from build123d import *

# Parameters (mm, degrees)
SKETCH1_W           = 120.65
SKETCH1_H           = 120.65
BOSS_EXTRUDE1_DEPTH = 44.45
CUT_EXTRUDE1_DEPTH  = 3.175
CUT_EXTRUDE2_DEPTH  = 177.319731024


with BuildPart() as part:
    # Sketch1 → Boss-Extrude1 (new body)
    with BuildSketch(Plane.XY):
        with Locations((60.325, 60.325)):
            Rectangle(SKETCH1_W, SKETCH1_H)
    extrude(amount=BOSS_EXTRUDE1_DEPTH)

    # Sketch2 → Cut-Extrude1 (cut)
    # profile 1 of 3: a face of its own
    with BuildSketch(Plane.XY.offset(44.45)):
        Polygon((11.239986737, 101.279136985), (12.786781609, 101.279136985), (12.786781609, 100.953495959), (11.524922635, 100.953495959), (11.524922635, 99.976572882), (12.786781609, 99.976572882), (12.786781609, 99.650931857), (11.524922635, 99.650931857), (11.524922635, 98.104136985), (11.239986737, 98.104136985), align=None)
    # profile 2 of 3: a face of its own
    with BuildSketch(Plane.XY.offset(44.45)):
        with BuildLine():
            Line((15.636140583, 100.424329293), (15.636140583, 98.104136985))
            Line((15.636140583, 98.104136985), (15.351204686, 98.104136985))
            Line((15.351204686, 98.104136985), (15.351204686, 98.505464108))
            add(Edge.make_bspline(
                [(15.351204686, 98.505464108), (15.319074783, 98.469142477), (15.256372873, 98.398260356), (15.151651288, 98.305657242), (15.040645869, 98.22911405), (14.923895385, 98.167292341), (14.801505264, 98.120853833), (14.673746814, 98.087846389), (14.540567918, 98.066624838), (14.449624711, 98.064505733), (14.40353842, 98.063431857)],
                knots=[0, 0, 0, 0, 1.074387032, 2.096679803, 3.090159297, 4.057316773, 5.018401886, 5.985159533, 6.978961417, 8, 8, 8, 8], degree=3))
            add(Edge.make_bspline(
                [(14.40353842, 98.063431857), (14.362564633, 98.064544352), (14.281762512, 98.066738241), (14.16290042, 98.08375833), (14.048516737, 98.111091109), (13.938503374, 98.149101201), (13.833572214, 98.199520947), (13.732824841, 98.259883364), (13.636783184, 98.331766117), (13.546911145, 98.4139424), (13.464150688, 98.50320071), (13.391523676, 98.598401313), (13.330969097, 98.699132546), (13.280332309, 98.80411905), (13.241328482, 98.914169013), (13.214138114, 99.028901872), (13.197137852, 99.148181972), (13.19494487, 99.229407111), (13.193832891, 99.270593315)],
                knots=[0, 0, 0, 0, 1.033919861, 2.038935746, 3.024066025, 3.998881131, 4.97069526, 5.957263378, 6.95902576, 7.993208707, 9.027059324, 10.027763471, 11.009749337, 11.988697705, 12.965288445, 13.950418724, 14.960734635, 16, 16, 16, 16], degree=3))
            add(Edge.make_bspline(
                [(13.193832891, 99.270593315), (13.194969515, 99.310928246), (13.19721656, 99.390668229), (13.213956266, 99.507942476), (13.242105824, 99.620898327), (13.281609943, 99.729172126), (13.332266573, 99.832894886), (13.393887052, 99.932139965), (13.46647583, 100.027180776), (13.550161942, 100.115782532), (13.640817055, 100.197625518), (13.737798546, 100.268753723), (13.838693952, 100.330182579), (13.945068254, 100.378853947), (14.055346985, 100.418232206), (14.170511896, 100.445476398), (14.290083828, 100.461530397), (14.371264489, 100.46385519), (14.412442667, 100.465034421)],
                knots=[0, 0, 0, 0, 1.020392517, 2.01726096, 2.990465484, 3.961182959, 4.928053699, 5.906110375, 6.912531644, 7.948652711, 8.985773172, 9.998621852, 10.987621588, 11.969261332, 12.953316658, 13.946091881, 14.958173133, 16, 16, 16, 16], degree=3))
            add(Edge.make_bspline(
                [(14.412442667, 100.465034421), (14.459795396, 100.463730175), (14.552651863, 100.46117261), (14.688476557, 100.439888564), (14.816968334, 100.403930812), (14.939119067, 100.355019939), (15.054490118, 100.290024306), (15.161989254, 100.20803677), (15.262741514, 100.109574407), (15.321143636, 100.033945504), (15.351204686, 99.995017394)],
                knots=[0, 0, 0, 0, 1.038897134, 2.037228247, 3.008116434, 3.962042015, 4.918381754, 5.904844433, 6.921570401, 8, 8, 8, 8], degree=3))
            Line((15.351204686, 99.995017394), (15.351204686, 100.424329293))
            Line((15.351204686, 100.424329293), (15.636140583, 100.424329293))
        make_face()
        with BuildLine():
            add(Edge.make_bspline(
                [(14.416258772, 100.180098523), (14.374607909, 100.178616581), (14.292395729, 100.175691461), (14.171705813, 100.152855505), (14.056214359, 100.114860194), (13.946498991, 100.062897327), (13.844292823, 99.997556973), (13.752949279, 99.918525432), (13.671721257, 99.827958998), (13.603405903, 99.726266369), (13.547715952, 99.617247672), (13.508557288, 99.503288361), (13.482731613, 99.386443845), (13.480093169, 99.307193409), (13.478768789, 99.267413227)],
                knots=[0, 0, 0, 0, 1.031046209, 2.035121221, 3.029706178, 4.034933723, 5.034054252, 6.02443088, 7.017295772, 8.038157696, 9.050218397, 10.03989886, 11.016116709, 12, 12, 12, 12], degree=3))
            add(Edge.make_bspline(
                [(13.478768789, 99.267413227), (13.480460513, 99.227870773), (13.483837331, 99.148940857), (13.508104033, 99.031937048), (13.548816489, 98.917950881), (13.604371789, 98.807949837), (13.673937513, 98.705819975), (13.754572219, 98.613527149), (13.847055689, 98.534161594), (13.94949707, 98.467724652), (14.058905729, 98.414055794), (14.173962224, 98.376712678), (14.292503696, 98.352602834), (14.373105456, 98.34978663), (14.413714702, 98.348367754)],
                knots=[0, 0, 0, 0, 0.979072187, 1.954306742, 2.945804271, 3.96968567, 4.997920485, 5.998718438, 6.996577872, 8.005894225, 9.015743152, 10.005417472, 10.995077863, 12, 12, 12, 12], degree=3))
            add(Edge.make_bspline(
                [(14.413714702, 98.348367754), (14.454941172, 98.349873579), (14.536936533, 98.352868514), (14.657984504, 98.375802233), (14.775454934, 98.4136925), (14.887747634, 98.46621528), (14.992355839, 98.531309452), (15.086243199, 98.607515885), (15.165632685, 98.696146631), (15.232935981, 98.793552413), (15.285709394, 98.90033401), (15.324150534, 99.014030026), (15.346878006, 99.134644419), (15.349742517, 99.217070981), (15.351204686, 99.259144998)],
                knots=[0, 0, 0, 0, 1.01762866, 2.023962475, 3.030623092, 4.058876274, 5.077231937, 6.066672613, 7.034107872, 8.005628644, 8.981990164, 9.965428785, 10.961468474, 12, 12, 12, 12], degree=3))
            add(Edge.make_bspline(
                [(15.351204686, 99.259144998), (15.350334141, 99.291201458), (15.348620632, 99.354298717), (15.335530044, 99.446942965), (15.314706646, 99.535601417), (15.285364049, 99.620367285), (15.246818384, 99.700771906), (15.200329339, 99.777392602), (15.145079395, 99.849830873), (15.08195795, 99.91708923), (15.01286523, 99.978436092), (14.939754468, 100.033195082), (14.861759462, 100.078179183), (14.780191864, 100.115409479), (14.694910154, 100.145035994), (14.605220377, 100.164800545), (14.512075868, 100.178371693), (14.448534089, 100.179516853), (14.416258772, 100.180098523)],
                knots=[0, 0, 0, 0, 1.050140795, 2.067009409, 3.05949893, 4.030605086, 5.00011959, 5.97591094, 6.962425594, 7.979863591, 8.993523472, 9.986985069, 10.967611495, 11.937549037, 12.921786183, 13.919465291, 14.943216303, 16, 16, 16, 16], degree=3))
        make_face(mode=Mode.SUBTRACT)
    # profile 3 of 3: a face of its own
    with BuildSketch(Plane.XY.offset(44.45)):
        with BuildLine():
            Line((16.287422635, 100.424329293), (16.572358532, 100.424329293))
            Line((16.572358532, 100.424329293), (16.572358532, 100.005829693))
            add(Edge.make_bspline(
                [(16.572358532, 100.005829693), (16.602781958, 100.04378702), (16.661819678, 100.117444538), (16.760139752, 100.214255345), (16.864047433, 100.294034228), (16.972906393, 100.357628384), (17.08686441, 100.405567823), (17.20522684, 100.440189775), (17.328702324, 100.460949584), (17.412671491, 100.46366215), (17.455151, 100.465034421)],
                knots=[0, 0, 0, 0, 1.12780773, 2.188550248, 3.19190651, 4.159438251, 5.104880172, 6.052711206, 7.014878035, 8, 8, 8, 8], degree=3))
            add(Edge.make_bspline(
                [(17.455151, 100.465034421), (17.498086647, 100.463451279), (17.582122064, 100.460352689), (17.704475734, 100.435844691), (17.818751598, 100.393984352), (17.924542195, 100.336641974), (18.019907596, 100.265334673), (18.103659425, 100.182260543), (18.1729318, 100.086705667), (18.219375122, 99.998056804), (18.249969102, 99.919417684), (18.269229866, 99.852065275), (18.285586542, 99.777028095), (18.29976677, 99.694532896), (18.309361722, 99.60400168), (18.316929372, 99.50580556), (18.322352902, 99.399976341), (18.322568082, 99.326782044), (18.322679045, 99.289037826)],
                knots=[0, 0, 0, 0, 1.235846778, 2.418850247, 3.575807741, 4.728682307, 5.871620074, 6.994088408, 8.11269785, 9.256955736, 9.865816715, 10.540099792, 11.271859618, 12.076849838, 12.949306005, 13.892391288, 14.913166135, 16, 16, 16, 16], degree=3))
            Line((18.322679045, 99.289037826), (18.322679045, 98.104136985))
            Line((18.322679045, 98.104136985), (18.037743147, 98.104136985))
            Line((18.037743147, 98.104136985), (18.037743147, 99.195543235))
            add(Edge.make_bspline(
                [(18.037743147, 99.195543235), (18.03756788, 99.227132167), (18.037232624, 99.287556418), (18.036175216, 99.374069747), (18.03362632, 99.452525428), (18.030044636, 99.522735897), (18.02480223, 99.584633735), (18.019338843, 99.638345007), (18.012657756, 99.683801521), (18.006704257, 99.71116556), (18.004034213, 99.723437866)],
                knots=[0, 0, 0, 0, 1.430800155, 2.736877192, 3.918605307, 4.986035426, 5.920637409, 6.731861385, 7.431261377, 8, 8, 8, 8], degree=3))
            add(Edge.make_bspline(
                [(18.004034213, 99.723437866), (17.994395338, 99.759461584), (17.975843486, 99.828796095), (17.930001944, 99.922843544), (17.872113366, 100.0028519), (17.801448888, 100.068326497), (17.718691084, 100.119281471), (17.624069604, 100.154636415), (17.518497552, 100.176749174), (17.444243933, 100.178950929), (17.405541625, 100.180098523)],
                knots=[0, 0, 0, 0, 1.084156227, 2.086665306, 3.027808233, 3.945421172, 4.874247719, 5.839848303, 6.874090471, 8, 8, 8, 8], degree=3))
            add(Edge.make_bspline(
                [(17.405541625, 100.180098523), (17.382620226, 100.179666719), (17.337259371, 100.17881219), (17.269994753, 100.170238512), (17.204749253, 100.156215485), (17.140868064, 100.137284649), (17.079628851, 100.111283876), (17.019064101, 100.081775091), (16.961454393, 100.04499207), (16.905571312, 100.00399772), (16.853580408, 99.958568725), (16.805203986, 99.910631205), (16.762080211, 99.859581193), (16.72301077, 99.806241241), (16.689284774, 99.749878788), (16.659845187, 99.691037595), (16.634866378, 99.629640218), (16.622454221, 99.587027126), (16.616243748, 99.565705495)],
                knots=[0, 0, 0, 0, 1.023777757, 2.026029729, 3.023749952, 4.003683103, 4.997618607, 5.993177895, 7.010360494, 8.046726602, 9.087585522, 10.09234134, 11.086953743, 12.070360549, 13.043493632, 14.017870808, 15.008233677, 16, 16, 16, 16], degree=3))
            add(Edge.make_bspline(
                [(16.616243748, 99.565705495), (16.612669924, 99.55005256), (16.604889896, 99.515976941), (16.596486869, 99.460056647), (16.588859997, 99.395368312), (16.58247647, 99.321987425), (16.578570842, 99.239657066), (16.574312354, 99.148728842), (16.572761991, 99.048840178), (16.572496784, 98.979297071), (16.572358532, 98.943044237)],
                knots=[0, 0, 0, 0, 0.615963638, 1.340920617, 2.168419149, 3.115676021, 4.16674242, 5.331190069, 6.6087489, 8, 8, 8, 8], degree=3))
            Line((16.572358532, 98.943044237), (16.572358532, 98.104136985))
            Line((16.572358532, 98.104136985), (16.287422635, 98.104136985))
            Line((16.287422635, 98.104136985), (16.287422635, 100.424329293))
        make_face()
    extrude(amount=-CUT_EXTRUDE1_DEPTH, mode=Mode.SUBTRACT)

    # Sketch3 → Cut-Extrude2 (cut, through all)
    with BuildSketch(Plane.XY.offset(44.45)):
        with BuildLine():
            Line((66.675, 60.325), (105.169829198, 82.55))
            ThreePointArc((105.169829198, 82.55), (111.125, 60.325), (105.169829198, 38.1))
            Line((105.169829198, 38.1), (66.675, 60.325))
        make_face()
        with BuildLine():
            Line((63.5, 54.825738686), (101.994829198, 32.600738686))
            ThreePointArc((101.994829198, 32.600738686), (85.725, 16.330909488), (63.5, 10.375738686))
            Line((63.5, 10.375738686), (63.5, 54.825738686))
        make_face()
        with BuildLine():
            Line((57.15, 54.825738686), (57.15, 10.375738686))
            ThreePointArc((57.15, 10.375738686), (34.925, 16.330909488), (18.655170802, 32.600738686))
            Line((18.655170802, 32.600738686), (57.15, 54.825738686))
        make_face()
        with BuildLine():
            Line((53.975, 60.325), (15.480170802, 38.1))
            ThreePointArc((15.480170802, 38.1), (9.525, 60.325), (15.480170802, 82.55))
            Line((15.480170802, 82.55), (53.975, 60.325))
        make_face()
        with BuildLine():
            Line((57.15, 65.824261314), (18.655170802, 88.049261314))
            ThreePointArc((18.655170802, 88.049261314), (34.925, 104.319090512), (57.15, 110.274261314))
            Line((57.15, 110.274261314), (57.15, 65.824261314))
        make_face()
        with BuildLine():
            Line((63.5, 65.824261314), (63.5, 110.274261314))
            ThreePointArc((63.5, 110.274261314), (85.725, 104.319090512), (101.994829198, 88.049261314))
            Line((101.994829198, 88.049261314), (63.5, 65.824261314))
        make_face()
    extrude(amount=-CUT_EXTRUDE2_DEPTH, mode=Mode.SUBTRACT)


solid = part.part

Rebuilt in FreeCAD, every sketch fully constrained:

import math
import FreeCAD as App
import Part
import Sketcher
from FreeCAD import Vector
Q = App.Units.Quantity

doc = App.newDocument("Part")
body = doc.addObject("PartDesign::Body", "Body")

sketch1 = body.newObject("Sketcher::SketchObject", "Sketch")
sketch1.AttachmentSupport = (doc.getObject("XY_Plane"), [""])
sketch1.MapMode = "FlatFace"
sketch1.addGeometry([
    Part.LineSegment(Vector(0, 120.65, 0), Vector(0, 0, 0)),
    Part.LineSegment(Vector(0, 0, 0), Vector(120.65, 0, 0)),
    Part.LineSegment(Vector(120.65, 0, 0), Vector(120.65, 120.65, 0)),
    Part.LineSegment(Vector(120.65, 120.65, 0), Vector(0, 120.65, 0)),
], False)
sketch1.addConstraint([
    Sketcher.Constraint("Coincident", 0, 2, 1, 1),
    Sketcher.Constraint("Coincident", 1, 2, 2, 1),
    Sketcher.Constraint("Coincident", 2, 2, 3, 1),
    Sketcher.Constraint("Coincident", 3, 2, 0, 1),
    Sketcher.Constraint("Vertical", 0),
    Sketcher.Constraint("Horizontal", 1),
    Sketcher.Constraint("Vertical", 2),
    Sketcher.Constraint("Horizontal", 3),
    Sketcher.Constraint("Coincident", 0, 2, -1, 1),
    Sketcher.Constraint("Equal", 3, 0),
    Sketcher.Constraint("DistanceX", 1, 1, 1, 2, Q("4.75 in")),
])
pad1 = body.newObject("PartDesign::Pad", "Pad")
pad1.Profile = sketch1
pad1.Length = Q("1.75 in")

sketch2 = body.newObject("Sketcher::SketchObject", "Sketch001")
sketch2.AttachmentSupport = (doc.getObject("XY_Plane"), [""])
sketch2.MapMode = "FlatFace"
sketch2.AttachmentOffset = App.Placement(Vector(0, 0, 1.75 * 25.4), App.Rotation())
sketch2.addGeometry([
    Part.LineSegment(Vector(12.786782, 101.279137, 0), Vector(11.239987, 101.279137, 0)),
    Part.LineSegment(Vector(11.239987, 101.279137, 0), Vector(11.239987, 98.104137, 0)),
    Part.LineSegment(Vector(11.239987, 98.104137, 0), Vector(11.524923, 98.104137, 0)),
    Part.LineSegment(Vector(11.524923, 98.104137, 0), Vector(11.524923, 99.650932, 0)),
    Part.LineSegment(Vector(11.524923, 99.650932, 0), Vector(12.786782, 99.650932, 0)),
    Part.LineSegment(Vector(12.786782, 99.650932, 0), Vector(12.786782, 99.976573, 0)),
    Part.LineSegment(Vector(12.786782, 99.976573, 0), Vector(11.524923, 99.976573, 0)),
    Part.LineSegment(Vector(11.524923, 99.976573, 0), Vector(11.524923, 100.953496, 0)),
    Part.LineSegment(Vector(11.524923, 100.953496, 0), Vector(12.786782, 100.953496, 0)),
    Part.LineSegment(Vector(12.786782, 100.953496, 0), Vector(12.786782, 101.279137, 0)),
    Part.LineSegment(Vector(15.636141, 98.104137, 0), Vector(15.636141, 100.424329, 0)),
    Part.LineSegment(Vector(15.636141, 100.424329, 0), Vector(15.351205, 100.424329, 0)),
    Part.LineSegment(Vector(15.351205, 100.424329, 0), Vector(15.351205, 99.995017, 0)),
    Part.BSplineCurve([Vector(14.412443, 100.465034, 0), Vector(14.459795, 100.46373, 0), Vector(14.552652, 100.461173, 0), Vector(14.688477, 100.439889, 0), Vector(14.816968, 100.403931, 0), Vector(14.939119, 100.35502, 0), Vector(15.05449, 100.290024, 0), Vector(15.161989, 100.208037, 0), Vector(15.262742, 100.109574, 0), Vector(15.321144, 100.033946, 0), Vector(15.351205, 99.995017, 0)], [4, 1, 1, 1, 1, 1, 1, 1, 4], [0, 1.038897134, 2.037228247, 3.008116434, 3.962042015, 4.918381754, 5.904844433, 6.921570401, 8], False, 3, [1, 1, 1, 1, 1, 1, 1, 1, 1, 1, 1], False),
    Part.BSplineCurve([Vector(13.193833, 99.270593, 0), Vector(13.19497, 99.310928, 0), Vector(13.197217, 99.390668, 0), Vector(13.213956, 99.507942, 0), Vector(13.242106, 99.620898, 0), Vector(13.28161, 99.729172, 0), Vector(13.332267, 99.832895, 0), Vector(13.393887, 99.93214, 0), Vector(13.466476, 100.027181, 0), Vector(13.550162, 100.115783, 0), Vector(13.640817, 100.197626, 0), Vector(13.737799, 100.268754, 0), Vector(13.838694, 100.330183, 0), Vector(13.945068, 100.378854, 0), Vector(14.055347, 100.418232, 0), Vector(14.170512, 100.445476, 0), Vector(14.290084, 100.46153, 0), Vector(14.371264, 100.463855, 0), Vector(14.412443, 100.465034, 0)], [4, 1, 1, 1, 1, 1, 1, 1, 1, 1, 1, 1, 1, 1, 1, 1, 4], [0, 1.020392517, 2.01726096, 2.990465484, 3.961182959, 4.928053699, 5.906110375, 6.912531644, 7.948652711, 8.985773172, 9.998621852, 10.987621588, 11.969261332, 12.953316658, 13.946091881, 14.958173133, 16], False, 3, [1, 1, 1, 1, 1, 1, 1, 1, 1, 1, 1, 1, 1, 1, 1, 1, 1, 1, 1], False),
    Part.BSplineCurve([Vector(14.403538, 98.063432, 0), Vector(14.362565, 98.064544, 0), Vector(14.281763, 98.066738, 0), Vector(14.1629, 98.083758, 0), Vector(14.048517, 98.111091, 0), Vector(13.938503, 98.149101, 0), Vector(13.833572, 98.199521, 0), Vector(13.732825, 98.259883, 0), Vector(13.636783, 98.331766, 0), Vector(13.546911, 98.413942, 0), Vector(13.464151, 98.503201, 0), Vector(13.391524, 98.598401, 0), Vector(13.330969, 98.699133, 0), Vector(13.280332, 98.804119, 0), Vector(13.241328, 98.914169, 0), Vector(13.214138, 99.028902, 0), Vector(13.197138, 99.148182, 0), Vector(13.194945, 99.229407, 0), Vector(13.193833, 99.270593, 0)], [4, 1, 1, 1, 1, 1, 1, 1, 1, 1, 1, 1, 1, 1, 1, 1, 4], [0, 1.033919861, 2.038935746, 3.024066025, 3.998881131, 4.97069526, 5.957263378, 6.95902576, 7.993208707, 9.027059324, 10.027763471, 11.009749337, 11.988697705, 12.965288445, 13.950418724, 14.960734635, 16], False, 3, [1, 1, 1, 1, 1, 1, 1, 1, 1, 1, 1, 1, 1, 1, 1, 1, 1, 1, 1], False),
    Part.BSplineCurve([Vector(15.351205, 98.505464, 0), Vector(15.319075, 98.469142, 0), Vector(15.256373, 98.39826, 0), Vector(15.151651, 98.305657, 0), Vector(15.040646, 98.229114, 0), Vector(14.923895, 98.167292, 0), Vector(14.801505, 98.120854, 0), Vector(14.673747, 98.087846, 0), Vector(14.540568, 98.066625, 0), Vector(14.449625, 98.064506, 0), Vector(14.403538, 98.063432, 0)], [4, 1, 1, 1, 1, 1, 1, 1, 4], [0, 1.074387032, 2.096679803, 3.090159297, 4.057316773, 5.018401886, 5.985159533, 6.978961417, 8], False, 3, [1, 1, 1, 1, 1, 1, 1, 1, 1, 1, 1], False),
    Part.LineSegment(Vector(15.351205, 98.505464, 0), Vector(15.351205, 98.104137, 0)),
    Part.LineSegment(Vector(15.351205, 98.104137, 0), Vector(15.636141, 98.104137, 0)),
    Part.BSplineCurve([Vector(15.351205, 99.259145, 0), Vector(15.350334, 99.291201, 0), Vector(15.348621, 99.354299, 0), Vector(15.33553, 99.446943, 0), Vector(15.314707, 99.535601, 0), Vector(15.285364, 99.620367, 0), Vector(15.246818, 99.700772, 0), Vector(15.200329, 99.777393, 0), Vector(15.145079, 99.849831, 0), Vector(15.081958, 99.917089, 0), Vector(15.012865, 99.978436, 0), Vector(14.939754, 100.033195, 0), Vector(14.861759, 100.078179, 0), Vector(14.780192, 100.115409, 0), Vector(14.69491, 100.145036, 0), Vector(14.60522, 100.164801, 0), Vector(14.512076, 100.178372, 0), Vector(14.448534, 100.179517, 0), Vector(14.416259, 100.180099, 0)], [4, 1, 1, 1, 1, 1, 1, 1, 1, 1, 1, 1, 1, 1, 1, 1, 4], [0, 1.050140795, 2.067009409, 3.05949893, 4.030605086, 5.00011959, 5.97591094, 6.962425594, 7.979863591, 8.993523472, 9.986985069, 10.967611495, 11.937549037, 12.921786183, 13.919465291, 14.943216303, 16], False, 3, [1, 1, 1, 1, 1, 1, 1, 1, 1, 1, 1, 1, 1, 1, 1, 1, 1, 1, 1], False),
    Part.BSplineCurve([Vector(14.413715, 98.348368, 0), Vector(14.454941, 98.349874, 0), Vector(14.536937, 98.352869, 0), Vector(14.657985, 98.375802, 0), Vector(14.775455, 98.413692, 0), Vector(14.887748, 98.466215, 0), Vector(14.992356, 98.531309, 0), Vector(15.086243, 98.607516, 0), Vector(15.165633, 98.696147, 0), Vector(15.232936, 98.793552, 0), Vector(15.285709, 98.900334, 0), Vector(15.324151, 99.01403, 0), Vector(15.346878, 99.134644, 0), Vector(15.349743, 99.217071, 0), Vector(15.351205, 99.259145, 0)], [4, 1, 1, 1, 1, 1, 1, 1, 1, 1, 1, 1, 4], [0, 1.01762866, 2.023962475, 3.030623092, 4.058876274, 5.077231937, 6.066672613, 7.034107872, 8.005628644, 8.981990164, 9.965428785, 10.961468474, 12], False, 3, [1, 1, 1, 1, 1, 1, 1, 1, 1, 1, 1, 1, 1, 1, 1], False),
    Part.BSplineCurve([Vector(13.478769, 99.267413, 0), Vector(13.480461, 99.227871, 0), Vector(13.483837, 99.148941, 0), Vector(13.508104, 99.031937, 0), Vector(13.548816, 98.917951, 0), Vector(13.604372, 98.80795, 0), Vector(13.673938, 98.70582, 0), Vector(13.754572, 98.613527, 0), Vector(13.847056, 98.534162, 0), Vector(13.949497, 98.467725, 0), Vector(14.058906, 98.414056, 0), Vector(14.173962, 98.376713, 0), Vector(14.292504, 98.352603, 0), Vector(14.373105, 98.349787, 0), Vector(14.413715, 98.348368, 0)], [4, 1, 1, 1, 1, 1, 1, 1, 1, 1, 1, 1, 4], [0, 0.979072187, 1.954306742, 2.945804271, 3.96968567, 4.997920485, 5.998718438, 6.996577872, 8.005894225, 9.015743152, 10.005417472, 10.995077863, 12], False, 3, [1, 1, 1, 1, 1, 1, 1, 1, 1, 1, 1, 1, 1, 1, 1], False),
    Part.BSplineCurve([Vector(14.416259, 100.180099, 0), Vector(14.374608, 100.178617, 0), Vector(14.292396, 100.175691, 0), Vector(14.171706, 100.152856, 0), Vector(14.056214, 100.11486, 0), Vector(13.946499, 100.062897, 0), Vector(13.844293, 99.997557, 0), Vector(13.752949, 99.918525, 0), Vector(13.671721, 99.827959, 0), Vector(13.603406, 99.726266, 0), Vector(13.547716, 99.617248, 0), Vector(13.508557, 99.503288, 0), Vector(13.482732, 99.386444, 0), Vector(13.480093, 99.307193, 0), Vector(13.478769, 99.267413, 0)], [4, 1, 1, 1, 1, 1, 1, 1, 1, 1, 1, 1, 4], [0, 1.031046209, 2.035121221, 3.029706178, 4.034933723, 5.034054252, 6.02443088, 7.017295772, 8.038157696, 9.050218397, 10.03989886, 11.016116709, 12], False, 3, [1, 1, 1, 1, 1, 1, 1, 1, 1, 1, 1, 1, 1, 1, 1], False),
    Part.LineSegment(Vector(16.572359, 100.424329, 0), Vector(16.287423, 100.424329, 0)),
    Part.LineSegment(Vector(16.287423, 100.424329, 0), Vector(16.287423, 98.104137, 0)),
    Part.LineSegment(Vector(16.287423, 98.104137, 0), Vector(16.572359, 98.104137, 0)),
    Part.LineSegment(Vector(16.572359, 98.104137, 0), Vector(16.572359, 98.943044, 0)),
    Part.BSplineCurve([Vector(16.616244, 99.565705, 0), Vector(16.61267, 99.550053, 0), Vector(16.60489, 99.515977, 0), Vector(16.596487, 99.460057, 0), Vector(16.58886, 99.395368, 0), Vector(16.582476, 99.321987, 0), Vector(16.578571, 99.239657, 0), Vector(16.574312, 99.148729, 0), Vector(16.572762, 99.04884, 0), Vector(16.572497, 98.979297, 0), Vector(16.572359, 98.943044, 0)], [4, 1, 1, 1, 1, 1, 1, 1, 4], [0, 0.615963638, 1.340920617, 2.168419149, 3.115676021, 4.16674242, 5.331190069, 6.6087489, 8], False, 3, [1, 1, 1, 1, 1, 1, 1, 1, 1, 1, 1], False),
    Part.BSplineCurve([Vector(17.405542, 100.180099, 0), Vector(17.38262, 100.179667, 0), Vector(17.337259, 100.178812, 0), Vector(17.269995, 100.170239, 0), Vector(17.204749, 100.156215, 0), Vector(17.140868, 100.137285, 0), Vector(17.079629, 100.111284, 0), Vector(17.019064, 100.081775, 0), Vector(16.961454, 100.044992, 0), Vector(16.905571, 100.003998, 0), Vector(16.85358, 99.958569, 0), Vector(16.805204, 99.910631, 0), Vector(16.76208, 99.859581, 0), Vector(16.723011, 99.806241, 0), Vector(16.689285, 99.749879, 0), Vector(16.659845, 99.691038, 0), Vector(16.634866, 99.62964, 0), Vector(16.622454, 99.587027, 0), Vector(16.616244, 99.565705, 0)], [4, 1, 1, 1, 1, 1, 1, 1, 1, 1, 1, 1, 1, 1, 1, 1, 4], [0, 1.023777757, 2.026029729, 3.023749952, 4.003683103, 4.997618607, 5.993177895, 7.010360494, 8.046726602, 9.087585522, 10.09234134, 11.086953743, 12.070360549, 13.043493632, 14.017870808, 15.008233677, 16], False, 3, [1, 1, 1, 1, 1, 1, 1, 1, 1, 1, 1, 1, 1, 1, 1, 1, 1, 1, 1], False),
    Part.BSplineCurve([Vector(18.004034, 99.723438, 0), Vector(17.994395, 99.759462, 0), Vector(17.975843, 99.828796, 0), Vector(17.930002, 99.922844, 0), Vector(17.872113, 100.002852, 0), Vector(17.801449, 100.068326, 0), Vector(17.718691, 100.119281, 0), Vector(17.62407, 100.154636, 0), Vector(17.518498, 100.176749, 0), Vector(17.444244, 100.178951, 0), Vector(17.405542, 100.180099, 0)], [4, 1, 1, 1, 1, 1, 1, 1, 4], [0, 1.084156227, 2.086665306, 3.027808233, 3.945421172, 4.874247719, 5.839848303, 6.874090471, 8], False, 3, [1, 1, 1, 1, 1, 1, 1, 1, 1, 1, 1], False),
    Part.BSplineCurve([Vector(18.037743, 99.195543, 0), Vector(18.037568, 99.227132, 0), Vector(18.037233, 99.287556, 0), Vector(18.036175, 99.37407, 0), Vector(18.033626, 99.452525, 0), Vector(18.030045, 99.522736, 0), Vector(18.024802, 99.584634, 0), Vector(18.019339, 99.638345, 0), Vector(18.012658, 99.683802, 0), Vector(18.006704, 99.711166, 0), Vector(18.004034, 99.723438, 0)], [4, 1, 1, 1, 1, 1, 1, 1, 4], [0, 1.430800155, 2.736877192, 3.918605307, 4.986035426, 5.920637409, 6.731861385, 7.431261377, 8], False, 3, [1, 1, 1, 1, 1, 1, 1, 1, 1, 1, 1], False),
    Part.LineSegment(Vector(18.037743, 99.195543, 0), Vector(18.037743, 98.104137, 0)),
    Part.LineSegment(Vector(18.037743, 98.104137, 0), Vector(18.322679, 98.104137, 0)),
    Part.LineSegment(Vector(18.322679, 98.104137, 0), Vector(18.322679, 99.289038, 0)),
    Part.BSplineCurve([Vector(17.455151, 100.465034, 0), Vector(17.498087, 100.463451, 0), Vector(17.582122, 100.460353, 0), Vector(17.704476, 100.435845, 0), Vector(17.818752, 100.393984, 0), Vector(17.924542, 100.336642, 0), Vector(18.019908, 100.265335, 0), Vector(18.103659, 100.182261, 0), Vector(18.172932, 100.086706, 0), Vector(18.219375, 99.998057, 0), Vector(18.249969, 99.919418, 0), Vector(18.26923, 99.852065, 0), Vector(18.285587, 99.777028, 0), Vector(18.299767, 99.694533, 0), Vector(18.309362, 99.604002, 0), Vector(18.316929, 99.505806, 0), Vector(18.322353, 99.399976, 0), Vector(18.322568, 99.326782, 0), Vector(18.322679, 99.289038, 0)], [4, 1, 1, 1, 1, 1, 1, 1, 1, 1, 1, 1, 1, 1, 1, 1, 4], [0, 1.235846778, 2.418850247, 3.575807741, 4.728682307, 5.871620074, 6.994088408, 8.11269785, 9.256955736, 9.865816715, 10.540099792, 11.271859618, 12.076849838, 12.949306005, 13.892391288, 14.913166135, 16], False, 3, [1, 1, 1, 1, 1, 1, 1, 1, 1, 1, 1, 1, 1, 1, 1, 1, 1, 1, 1], False),
    Part.BSplineCurve([Vector(16.572359, 100.00583, 0), Vector(16.602782, 100.043787, 0), Vector(16.66182, 100.117445, 0), Vector(16.76014, 100.214255, 0), Vector(16.864047, 100.294034, 0), Vector(16.972906, 100.357628, 0), Vector(17.086864, 100.405568, 0), Vector(17.205227, 100.44019, 0), Vector(17.328702, 100.46095, 0), Vector(17.412671, 100.463662, 0), Vector(17.455151, 100.465034, 0)], [4, 1, 1, 1, 1, 1, 1, 1, 4], [0, 1.12780773, 2.188550248, 3.19190651, 4.159438251, 5.104880172, 6.052711206, 7.014878035, 8], False, 3, [1, 1, 1, 1, 1, 1, 1, 1, 1, 1, 1], False),
    Part.LineSegment(Vector(16.572359, 100.00583, 0), Vector(16.572359, 100.424329, 0)),
], False)
sketch2.addConstraint([
    Sketcher.Constraint("Block", 13),
    Sketcher.Constraint("Block", 14),
    Sketcher.Constraint("Block", 15),
    Sketcher.Constraint("Block", 16),
    Sketcher.Constraint("Block", 19),
    Sketcher.Constraint("Block", 20),
    Sketcher.Constraint("Block", 21),
    Sketcher.Constraint("Block", 22),
    Sketcher.Constraint("Block", 27),
    Sketcher.Constraint("Block", 28),
    Sketcher.Constraint("Block", 29),
    Sketcher.Constraint("Block", 30),
    Sketcher.Constraint("Block", 34),
    Sketcher.Constraint("Block", 35),
    Sketcher.Constraint("Coincident", 0, 2, 1, 1),
    Sketcher.Constraint("Coincident", 1, 2, 2, 1),
    Sketcher.Constraint("Coincident", 2, 2, 3, 1),
    Sketcher.Constraint("Coincident", 3, 2, 4, 1),
    Sketcher.Constraint("Coincident", 4, 2, 5, 1),
    Sketcher.Constraint("Coincident", 5, 2, 6, 1),
    Sketcher.Constraint("Coincident", 6, 2, 7, 1),
    Sketcher.Constraint("Coincident", 7, 2, 8, 1),
    Sketcher.Constraint("Coincident", 8, 2, 9, 1),
    Sketcher.Constraint("Coincident", 9, 2, 0, 1),
    Sketcher.Constraint("Coincident", 10, 2, 11, 1),
    Sketcher.Constraint("Coincident", 11, 2, 12, 1),
    Sketcher.Constraint("Coincident", 12, 2, 13, 2),
    Sketcher.Constraint("Coincident", 16, 1, 17, 1),
    Sketcher.Constraint("Coincident", 17, 2, 18, 1),
    Sketcher.Constraint("Coincident", 18, 2, 10, 1),
    Sketcher.Constraint("Coincident", 23, 2, 24, 1),
    Sketcher.Constraint("Coincident", 24, 2, 25, 1),
    Sketcher.Constraint("Coincident", 25, 2, 26, 1),
    Sketcher.Constraint("Coincident", 26, 2, 27, 2),
    Sketcher.Constraint("Coincident", 30, 1, 31, 1),
    Sketcher.Constraint("Coincident", 31, 2, 32, 1),
    Sketcher.Constraint("Coincident", 32, 2, 33, 1),
    Sketcher.Constraint("Coincident", 33, 2, 34, 2),
    Sketcher.Constraint("Coincident", 35, 1, 36, 1),
    Sketcher.Constraint("Coincident", 36, 2, 23, 1),
    Sketcher.Constraint("Horizontal", 0),
    Sketcher.Constraint("Vertical", 1),
    Sketcher.Constraint("Horizontal", 2),
    Sketcher.Constraint("Vertical", 3),
    Sketcher.Constraint("Horizontal", 4),
    Sketcher.Constraint("Vertical", 5),
    Sketcher.Constraint("Horizontal", 6),
    Sketcher.Constraint("Vertical", 7),
    Sketcher.Constraint("Horizontal", 8),
    Sketcher.Constraint("Vertical", 9),
    Sketcher.Constraint("Vertical", 10),
    Sketcher.Constraint("Horizontal", 11),
    Sketcher.Constraint("Vertical", 12),
    Sketcher.Constraint("Vertical", 17),
    Sketcher.Constraint("Horizontal", 18),
    Sketcher.Constraint("Horizontal", 23),
    Sketcher.Constraint("Vertical", 24),
    Sketcher.Constraint("Horizontal", 25),
    Sketcher.Constraint("Vertical", 26),
    Sketcher.Constraint("Vertical", 31),
    Sketcher.Constraint("Horizontal", 32),
    Sketcher.Constraint("Vertical", 33),
    Sketcher.Constraint("Vertical", 36),
    Sketcher.Constraint("DistanceY", 1, 2, 1, 1, Q("0.125 in")),
    Sketcher.Constraint("DistanceY", 33, 1, 33, 2, 1.184901),
    Sketcher.Constraint("DistanceY", 36, 1, 36, 2, 0.4185),
    Sketcher.Constraint("DistanceX", 4, 1, 4, 2, 1.261859),
    Sketcher.Constraint("DistanceX", 6, 2, 6, 1, 1.261859),
    Sketcher.Constraint("DistanceX", 8, 1, 8, 2, 1.261859),
    Sketcher.Constraint("DistanceY", 5, 1, 5, 2, 0.325641),
    Sketcher.Constraint("DistanceY", 9, 1, 9, 2, 0.325641),
    Sketcher.Constraint("DistanceY", 12, 2, 12, 1, 0.429312),
    Sketcher.Constraint("DistanceY", 25, 2, 33, 2, 1.184901),
    Sketcher.Constraint("DistanceX", 0, 2, 0, 1, 1.546795),
    Sketcher.Constraint("DistanceX", 11, 2, 11, 1, 0.284936),
    Sketcher.Constraint("DistanceX", 23, 2, 23, 1, 0.284936),
    Sketcher.Constraint("DistanceY", 3, 1, 3, 2, 1.546795),
    Sketcher.Constraint("DistanceY", 10, 1, 10, 2, 2.320192),
    Sketcher.Constraint("DistanceY", -1, 1, 3, 2, 99.650932),
    Sketcher.Constraint("DistanceX", -1, 1, 4, 2, 12.786782),
])
pocket1 = body.newObject("PartDesign::Pocket", "Pocket")
pocket1.Profile = sketch2
pocket1.Length = Q("0.125 in")

sketch3 = body.newObject("Sketcher::SketchObject", "Sketch002")
sketch3.AttachmentSupport = (doc.getObject("XY_Plane"), [""])
sketch3.MapMode = "FlatFace"
sketch3.AttachmentOffset = App.Placement(Vector(0, 0, 1.75 * 25.4), App.Rotation())
sketch3.addGeometry([
    Part.LineSegment(Vector(105.169829, 82.55, 0), Vector(66.675, 60.325, 0)),
    Part.LineSegment(Vector(66.675, 60.325, 0), Vector(105.169829, 38.1, 0)),
    Part.ArcOfCircle(Part.Circle(Vector(66.675, 60.325, 0), Vector(0, 0, 1), 44.45), math.radians(-30), math.radians(30)),
    Part.LineSegment(Vector(101.994829, 32.600739, 0), Vector(63.5, 54.825739, 0)),
    Part.LineSegment(Vector(63.5, 54.825739, 0), Vector(63.5, 10.375739, 0)),
    Part.ArcOfCircle(Part.Circle(Vector(63.5, 54.825739, 0), Vector(0, 0, 1), 44.45), math.radians(-90), math.radians(-30)),
    Part.LineSegment(Vector(57.15, 10.375739, 0), Vector(57.15, 54.825739, 0)),
    Part.LineSegment(Vector(57.15, 54.825739, 0), Vector(18.655171, 32.600739, 0)),
    Part.ArcOfCircle(Part.Circle(Vector(57.15, 54.825739, 0), Vector(0, 0, 1), 44.45), math.radians(-150), math.radians(-90)),
    Part.LineSegment(Vector(15.480171, 38.1, 0), Vector(53.975, 60.325, 0)),
    Part.LineSegment(Vector(53.975, 60.325, 0), Vector(15.480171, 82.55, 0)),
    Part.ArcOfCircle(Part.Circle(Vector(53.975, 60.325, 0), Vector(0, 0, 1), 44.45), math.radians(150), math.radians(210)),
    Part.LineSegment(Vector(18.655171, 88.049261, 0), Vector(57.15, 65.824261, 0)),
    Part.LineSegment(Vector(57.15, 65.824261, 0), Vector(57.15, 110.274261, 0)),
    Part.ArcOfCircle(Part.Circle(Vector(57.15, 65.824261, 0), Vector(0, 0, 1), 44.45), math.radians(90), math.radians(150)),
    Part.LineSegment(Vector(63.5, 110.274261, 0), Vector(63.5, 65.824261, 0)),
    Part.LineSegment(Vector(63.5, 65.824261, 0), Vector(101.994829, 88.049261, 0)),
    Part.ArcOfCircle(Part.Circle(Vector(63.5, 65.824261, 0), Vector(0, 0, 1), 44.45), math.radians(30), math.radians(90)),
], False)
sketch3.addConstraint([
    Sketcher.Constraint("Coincident", 0, 2, 1, 1),
    Sketcher.Constraint("Coincident", 1, 2, 2, 1),
    Sketcher.Constraint("Coincident", 2, 2, 0, 1),
    Sketcher.Constraint("Coincident", 3, 2, 4, 1),
    Sketcher.Constraint("Coincident", 4, 2, 5, 1),
    Sketcher.Constraint("Coincident", 5, 2, 3, 1),
    Sketcher.Constraint("Coincident", 6, 2, 7, 1),
    Sketcher.Constraint("Coincident", 7, 2, 8, 1),
    Sketcher.Constraint("Coincident", 8, 2, 6, 1),
    Sketcher.Constraint("Coincident", 9, 2, 10, 1),
    Sketcher.Constraint("Coincident", 10, 2, 11, 1),
    Sketcher.Constraint("Coincident", 11, 2, 9, 1),
    Sketcher.Constraint("Coincident", 12, 2, 13, 1),
    Sketcher.Constraint("Coincident", 13, 2, 14, 1),
    Sketcher.Constraint("Coincident", 14, 2, 12, 1),
    Sketcher.Constraint("Coincident", 15, 2, 16, 1),
    Sketcher.Constraint("Coincident", 16, 2, 17, 1),
    Sketcher.Constraint("Coincident", 17, 2, 15, 1),
    Sketcher.Constraint("Vertical", 4),
    Sketcher.Constraint("Vertical", 6),
    Sketcher.Constraint("Vertical", 13),
    Sketcher.Constraint("Vertical", 15),
    Sketcher.Constraint("Coincident", 0, 2, 2, 3),
    Sketcher.Constraint("Coincident", 3, 2, 5, 3),
    Sketcher.Constraint("Coincident", 6, 2, 8, 3),
    Sketcher.Constraint("Coincident", 9, 2, 11, 3),
    Sketcher.Constraint("Coincident", 12, 2, 14, 3),
    Sketcher.Constraint("Coincident", 15, 2, 17, 3),
    Sketcher.Constraint("Equal", 2, 5),
    Sketcher.Constraint("Equal", 5, 8),
    Sketcher.Constraint("Equal", 8, 11),
    Sketcher.Constraint("Equal", 11, 14),
    Sketcher.Constraint("Equal", 14, 17),
    Sketcher.Constraint("Parallel", 1, 3),
    Sketcher.Constraint("Parallel", 0, 7),
    Sketcher.Constraint("Parallel", 7, 9),
    Sketcher.Constraint("Parallel", 3, 10),
    Sketcher.Constraint("Parallel", 10, 12),
    Sketcher.Constraint("Parallel", 9, 16),
    Sketcher.Constraint("Horizontal", 5, 3, 8, 3),
    Sketcher.Constraint("Horizontal", 2, 3, 11, 3),
    Sketcher.Constraint("Horizontal", 14, 3, 17, 3),
    Sketcher.Constraint("Horizontal", 5, 2, 7, 2),
    Sketcher.Constraint("Vertical", 8, 3, 14, 3),
    Sketcher.Constraint("Vertical", 5, 3, 17, 3),
    Sketcher.Constraint("Radius", 2, Q("1.75 in")),
    Sketcher.Constraint("Angle", 0, Q("-150 deg")),
    Sketcher.Constraint("DistanceX", -1, 1, 5, 3, Q("2.5 in")),
    Sketcher.Constraint("DistanceY", -1, 1, 1, 2, Q("1.5 in")),
    Sketcher.Constraint("DistanceX", 11, 3, 2, 3, Q("0.5 in")),
    Sketcher.Constraint("DistanceX", -1, 1, 8, 3, Q("2.25 in")),
    Sketcher.Constraint("DistanceX", -1, 1, 2, 3, Q("2.625 in")),
    Sketcher.Constraint("DistanceY", -1, 1, 5, 3, 54.825739),
    Sketcher.Constraint("DistanceY", -1, 1, 14, 3, 65.824261),
])
pocket2 = body.newObject("PartDesign::Pocket", "Pocket001")
pocket2.Profile = sketch3
pocket2.Type = "ThroughAll"

doc.recompute()
